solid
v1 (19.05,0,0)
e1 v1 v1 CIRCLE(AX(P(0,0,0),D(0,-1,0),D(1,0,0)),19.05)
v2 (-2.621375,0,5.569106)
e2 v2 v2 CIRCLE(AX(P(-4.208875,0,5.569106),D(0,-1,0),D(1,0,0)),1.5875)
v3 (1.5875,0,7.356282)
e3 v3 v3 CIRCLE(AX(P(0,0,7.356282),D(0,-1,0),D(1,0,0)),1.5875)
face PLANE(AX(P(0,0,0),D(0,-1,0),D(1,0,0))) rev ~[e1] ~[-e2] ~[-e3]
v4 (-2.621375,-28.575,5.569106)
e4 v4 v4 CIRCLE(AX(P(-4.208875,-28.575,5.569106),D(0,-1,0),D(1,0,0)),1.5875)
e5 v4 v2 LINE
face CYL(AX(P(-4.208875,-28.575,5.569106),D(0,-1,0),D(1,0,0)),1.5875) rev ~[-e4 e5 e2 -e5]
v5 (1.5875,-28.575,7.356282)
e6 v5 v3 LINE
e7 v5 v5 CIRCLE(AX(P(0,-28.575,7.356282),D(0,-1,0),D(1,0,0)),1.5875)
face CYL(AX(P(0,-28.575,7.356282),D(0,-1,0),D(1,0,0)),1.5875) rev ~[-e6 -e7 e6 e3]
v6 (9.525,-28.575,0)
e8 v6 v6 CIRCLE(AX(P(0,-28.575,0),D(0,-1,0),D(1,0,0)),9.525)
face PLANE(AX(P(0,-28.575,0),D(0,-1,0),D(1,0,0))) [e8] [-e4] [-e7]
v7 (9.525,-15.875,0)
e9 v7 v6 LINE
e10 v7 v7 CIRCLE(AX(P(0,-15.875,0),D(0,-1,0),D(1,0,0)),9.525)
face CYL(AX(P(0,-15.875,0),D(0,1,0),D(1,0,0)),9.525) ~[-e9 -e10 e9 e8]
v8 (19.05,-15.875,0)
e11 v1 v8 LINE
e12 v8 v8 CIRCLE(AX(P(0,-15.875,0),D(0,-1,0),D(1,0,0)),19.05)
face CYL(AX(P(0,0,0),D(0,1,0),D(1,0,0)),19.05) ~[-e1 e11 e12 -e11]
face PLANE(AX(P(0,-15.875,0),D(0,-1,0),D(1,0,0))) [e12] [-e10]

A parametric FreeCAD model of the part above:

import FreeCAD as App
import Part
import Sketcher
Q = App.Units.Quantity

doc = App.newDocument("Part")
body = doc.addObject("PartDesign::Body", "Body")

# Sketch on XZ plane
sketch1 = doc.addObject("Sketcher::SketchObject", "Sketch")
body.addObject(sketch1)
sketch1.AttachmentSupport = (doc.XZ_Plane, [""])
sketch1.MapMode = "FlatFace"
sketch1.addGeometry(Part.Circle(App.Vector(0, 0, 0), App.Vector(0, 0, 1), 19), False)
sketch1.addConstraint([
    Sketcher.Constraint("Coincident", 0, 3, -1, 1),
    Sketcher.Constraint("Diameter", 0, Q("1.5 in")),
])
pad1 = doc.addObject("PartDesign::Pad", "Pad")
body.addObject(pad1)
pad1.Profile = sketch1
pad1.Length = Q("0.625 in")

# Sketch on XZ plane
sketch2 = doc.addObject("Sketcher::SketchObject", "Sketch001")
body.addObject(sketch2)
sketch2.AttachmentSupport = (doc.XZ_Plane, [""])
sketch2.MapMode = "FlatFace"
sketch2.AttachmentOffset = App.Placement(App.Vector(0, 0, 0.625 * 25.4), App.Rotation())
sketch2.addGeometry(Part.Circle(App.Vector(0, 0, 0), App.Vector(0, 0, 1), 10), False)
sketch2.addConstraint([
    Sketcher.Constraint("Coincident", 0, 3, -1, 1),
    Sketcher.Constraint("Diameter", 0, Q("0.75 in")),
])
pad2 = doc.addObject("PartDesign::Pad", "Pad001")
body.addObject(pad2)
pad2.Profile = sketch2
pad2.Length = Q("0.5 in")

# Sketch on XZ plane
sketch3 = doc.addObject("Sketcher::SketchObject", "Sketch002")
body.addObject(sketch3)
sketch3.AttachmentSupport = (doc.XZ_Plane, [""])
sketch3.MapMode = "FlatFace"
sketch3.AttachmentOffset = App.Placement(App.Vector(0, 0, 1.125 * 25.4), App.Rotation())
sketch3.addGeometry(Part.Circle(App.Vector(0, 7.4, 0), App.Vector(0, 0, 1), 1.6), False)
sketch3.addConstraint([
    Sketcher.Constraint("PointOnObject", 0, 3, -2),
    Sketcher.Constraint("Diameter", 0, Q("0.125 in")),
    Sketcher.Constraint("DistanceY", -1, 1, 0, 3, Q("7.356282 mm")),
])
pocket1 = doc.addObject("PartDesign::Pocket", "Pocket")
body.addObject(pocket1)
pocket1.Profile = sketch3
pocket1.Length = Q("2 in")

# Sketch on XZ plane
sketch4 = doc.addObject("Sketcher::SketchObject", "Sketch003")
body.addObject(sketch4)
sketch4.AttachmentSupport = (doc.XZ_Plane, [""])
sketch4.MapMode = "FlatFace"
sketch4.AttachmentOffset = App.Placement(App.Vector(0, 0, 1.125 * 25.4), App.Rotation())
sketch4.addGeometry(Part.Circle(App.Vector(-4.2, 5.6, 0), App.Vector(0, 0, 1), 1.6), False)
sketch4.addConstraint([
    Sketcher.Constraint("Diameter", 0, Q("0.125 in")),
    Sketcher.Constraint("DistanceX", 0, 3, -1, 1, Q("4.208875 mm")),
    Sketcher.Constraint("DistanceY", -1, 1, 0, 3, Q("5.569106 mm")),
])
pocket2 = doc.addObject("PartDesign::Pocket", "Pocket001")
body.addObject(pocket2)
pocket2.Profile = sketch4
pocket2.Length = Q("2 in")

doc.recompute()
